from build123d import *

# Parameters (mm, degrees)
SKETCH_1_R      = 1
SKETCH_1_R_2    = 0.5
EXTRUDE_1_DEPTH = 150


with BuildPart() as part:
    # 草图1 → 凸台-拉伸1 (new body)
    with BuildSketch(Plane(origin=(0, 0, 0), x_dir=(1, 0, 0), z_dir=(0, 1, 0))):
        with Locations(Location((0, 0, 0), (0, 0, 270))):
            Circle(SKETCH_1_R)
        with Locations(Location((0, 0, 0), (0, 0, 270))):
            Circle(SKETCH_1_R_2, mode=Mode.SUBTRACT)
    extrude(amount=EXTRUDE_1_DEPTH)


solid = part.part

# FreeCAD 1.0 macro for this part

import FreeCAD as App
import Part
import Sketcher
from FreeCAD import Vector
Q = App.Units.Quantity

doc = App.newDocument("Part")
body = doc.addObject("PartDesign::Body", "Body")

# Sketch on XZ plane
sketch1 = body.newObject("Sketcher::SketchObject", "Sketch")
sketch1.AttachmentSupport = (doc.getObject("XZ_Plane"), [""])
sketch1.MapMode = "FlatFace"
sketch1.addGeometry([
    Part.Circle(Vector(0, 0, 0), Vector(0, 0, 1), 1),
    Part.Circle(Vector(0, 0, 0), Vector(0, 0, 1), 0.5),
], False)
sketch1.addConstraint([
    Sketcher.Constraint("Coincident", 0, 3, -1, 1),
    Sketcher.Constraint("Coincident", 1, 3, -1, 1),
    Sketcher.Constraint("Diameter", 0, Q("2 mm")),
    Sketcher.Constraint("Diameter", 1, Q("1 mm")),
])
pad1 = body.newObject("PartDesign::Pad", "Pad")
pad1.Profile = sketch1
pad1.Length = 150
pad1.Reversed = True

doc.recompute()
